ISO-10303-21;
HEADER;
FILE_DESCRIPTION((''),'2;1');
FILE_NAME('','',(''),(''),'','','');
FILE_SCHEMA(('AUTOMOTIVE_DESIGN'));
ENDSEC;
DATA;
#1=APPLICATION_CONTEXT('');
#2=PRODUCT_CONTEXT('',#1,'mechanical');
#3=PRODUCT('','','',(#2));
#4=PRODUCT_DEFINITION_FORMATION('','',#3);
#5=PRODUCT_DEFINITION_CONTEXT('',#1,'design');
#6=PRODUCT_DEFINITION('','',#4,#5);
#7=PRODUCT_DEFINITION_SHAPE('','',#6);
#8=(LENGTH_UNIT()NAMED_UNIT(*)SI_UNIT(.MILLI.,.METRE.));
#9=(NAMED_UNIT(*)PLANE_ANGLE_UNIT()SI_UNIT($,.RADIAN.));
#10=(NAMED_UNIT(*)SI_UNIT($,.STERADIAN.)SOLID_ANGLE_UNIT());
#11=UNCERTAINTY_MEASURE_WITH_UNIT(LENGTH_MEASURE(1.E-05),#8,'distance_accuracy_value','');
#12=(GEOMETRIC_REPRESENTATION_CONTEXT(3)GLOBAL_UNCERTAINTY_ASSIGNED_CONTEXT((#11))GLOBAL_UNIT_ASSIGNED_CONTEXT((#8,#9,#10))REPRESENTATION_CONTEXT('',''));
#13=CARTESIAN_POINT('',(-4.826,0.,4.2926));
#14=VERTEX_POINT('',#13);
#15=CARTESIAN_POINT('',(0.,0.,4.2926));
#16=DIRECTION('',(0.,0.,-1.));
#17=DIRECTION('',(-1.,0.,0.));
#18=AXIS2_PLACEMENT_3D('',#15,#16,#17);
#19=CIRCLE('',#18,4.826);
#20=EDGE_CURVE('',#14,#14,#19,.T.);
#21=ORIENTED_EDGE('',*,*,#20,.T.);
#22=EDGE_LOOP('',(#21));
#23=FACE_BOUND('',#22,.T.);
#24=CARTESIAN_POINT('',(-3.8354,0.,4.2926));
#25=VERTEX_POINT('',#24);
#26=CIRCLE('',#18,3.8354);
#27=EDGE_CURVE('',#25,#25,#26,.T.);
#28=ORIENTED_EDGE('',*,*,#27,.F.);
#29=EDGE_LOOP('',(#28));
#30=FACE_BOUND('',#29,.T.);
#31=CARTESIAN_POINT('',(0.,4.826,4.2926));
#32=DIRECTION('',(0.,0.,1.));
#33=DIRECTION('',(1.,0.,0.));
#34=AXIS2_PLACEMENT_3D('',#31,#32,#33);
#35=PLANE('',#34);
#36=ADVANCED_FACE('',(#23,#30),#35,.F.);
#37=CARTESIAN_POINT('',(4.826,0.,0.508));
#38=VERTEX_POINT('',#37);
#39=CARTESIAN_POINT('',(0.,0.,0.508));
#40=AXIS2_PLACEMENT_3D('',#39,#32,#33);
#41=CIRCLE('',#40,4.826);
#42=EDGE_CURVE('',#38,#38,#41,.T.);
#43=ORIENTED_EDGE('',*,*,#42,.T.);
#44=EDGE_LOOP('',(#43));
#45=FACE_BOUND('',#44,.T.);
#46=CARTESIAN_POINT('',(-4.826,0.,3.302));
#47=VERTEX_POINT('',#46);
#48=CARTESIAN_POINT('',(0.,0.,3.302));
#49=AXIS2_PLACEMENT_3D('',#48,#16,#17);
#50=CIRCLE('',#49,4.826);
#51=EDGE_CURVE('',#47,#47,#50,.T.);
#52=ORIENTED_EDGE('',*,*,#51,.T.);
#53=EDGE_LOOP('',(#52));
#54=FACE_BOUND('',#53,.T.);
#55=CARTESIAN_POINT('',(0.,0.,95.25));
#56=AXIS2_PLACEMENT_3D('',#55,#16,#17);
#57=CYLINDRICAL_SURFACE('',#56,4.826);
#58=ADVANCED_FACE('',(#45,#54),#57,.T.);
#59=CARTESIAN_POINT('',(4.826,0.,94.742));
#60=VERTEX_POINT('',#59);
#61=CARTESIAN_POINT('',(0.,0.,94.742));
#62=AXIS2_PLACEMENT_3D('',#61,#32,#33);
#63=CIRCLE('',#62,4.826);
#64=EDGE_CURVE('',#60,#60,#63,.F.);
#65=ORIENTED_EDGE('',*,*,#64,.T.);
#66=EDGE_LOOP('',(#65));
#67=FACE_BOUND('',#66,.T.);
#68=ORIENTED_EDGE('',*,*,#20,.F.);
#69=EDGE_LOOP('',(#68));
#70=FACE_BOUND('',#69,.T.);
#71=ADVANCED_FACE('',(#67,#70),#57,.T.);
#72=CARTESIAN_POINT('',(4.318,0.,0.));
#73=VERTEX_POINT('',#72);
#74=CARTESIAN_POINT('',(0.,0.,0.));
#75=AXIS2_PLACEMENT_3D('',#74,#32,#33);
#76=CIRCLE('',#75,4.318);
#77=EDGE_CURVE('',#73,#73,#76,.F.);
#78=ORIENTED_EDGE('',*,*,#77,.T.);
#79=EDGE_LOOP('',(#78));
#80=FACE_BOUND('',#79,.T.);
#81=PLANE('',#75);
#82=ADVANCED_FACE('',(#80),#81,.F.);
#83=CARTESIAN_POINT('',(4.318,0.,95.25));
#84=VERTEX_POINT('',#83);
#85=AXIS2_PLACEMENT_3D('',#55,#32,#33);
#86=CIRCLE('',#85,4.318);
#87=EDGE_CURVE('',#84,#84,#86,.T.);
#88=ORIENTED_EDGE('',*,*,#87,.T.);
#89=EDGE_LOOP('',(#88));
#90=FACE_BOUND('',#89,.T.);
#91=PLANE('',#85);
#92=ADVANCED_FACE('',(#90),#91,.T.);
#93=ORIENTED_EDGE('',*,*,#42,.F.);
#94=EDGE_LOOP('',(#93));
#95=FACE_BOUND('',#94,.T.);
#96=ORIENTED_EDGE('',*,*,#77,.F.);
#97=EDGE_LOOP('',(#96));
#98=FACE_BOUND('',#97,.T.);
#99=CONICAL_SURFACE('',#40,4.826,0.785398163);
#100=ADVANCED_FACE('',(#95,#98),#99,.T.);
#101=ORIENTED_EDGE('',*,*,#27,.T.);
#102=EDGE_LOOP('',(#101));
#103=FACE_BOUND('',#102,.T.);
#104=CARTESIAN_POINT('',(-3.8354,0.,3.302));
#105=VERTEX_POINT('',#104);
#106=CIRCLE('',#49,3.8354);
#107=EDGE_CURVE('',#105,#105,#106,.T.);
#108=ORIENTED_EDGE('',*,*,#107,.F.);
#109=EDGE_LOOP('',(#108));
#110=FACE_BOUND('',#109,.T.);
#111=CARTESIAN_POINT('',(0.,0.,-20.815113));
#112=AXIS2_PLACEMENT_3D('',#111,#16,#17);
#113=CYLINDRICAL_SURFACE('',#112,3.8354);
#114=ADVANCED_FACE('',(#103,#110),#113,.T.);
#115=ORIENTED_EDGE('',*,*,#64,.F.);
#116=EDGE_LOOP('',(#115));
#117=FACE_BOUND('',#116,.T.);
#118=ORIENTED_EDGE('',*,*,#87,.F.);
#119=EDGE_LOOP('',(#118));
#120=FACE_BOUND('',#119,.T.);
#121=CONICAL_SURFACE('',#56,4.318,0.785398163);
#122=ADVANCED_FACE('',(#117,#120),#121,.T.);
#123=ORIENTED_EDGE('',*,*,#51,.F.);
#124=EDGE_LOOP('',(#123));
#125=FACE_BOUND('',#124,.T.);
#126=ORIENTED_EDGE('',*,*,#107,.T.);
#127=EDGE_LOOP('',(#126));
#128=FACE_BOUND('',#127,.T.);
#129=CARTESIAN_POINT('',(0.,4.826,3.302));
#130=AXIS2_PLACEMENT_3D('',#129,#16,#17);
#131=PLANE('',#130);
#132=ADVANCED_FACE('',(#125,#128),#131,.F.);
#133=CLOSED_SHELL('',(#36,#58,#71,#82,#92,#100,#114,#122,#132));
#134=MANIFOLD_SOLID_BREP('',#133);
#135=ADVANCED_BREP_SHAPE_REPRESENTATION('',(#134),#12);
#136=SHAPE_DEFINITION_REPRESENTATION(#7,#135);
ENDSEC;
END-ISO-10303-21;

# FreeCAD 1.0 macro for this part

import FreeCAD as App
import Part
import Sketcher
Q = App.Units.Quantity


def edges_at(feature, points):
    """Names of the edges that pass closest to the given points."""
    edges = feature.Shape.Edges
    near = lambda p: min(range(len(edges)), key=lambda i: edges[i].distToShape(Part.Vertex(*p))[0])
    return sorted({f"Edge{near(p) + 1}" for p in points})

doc = App.newDocument("Part")
params = doc.addObject("Spreadsheet::Sheet", "Params")
for row, (alias, value) in enumerate([
    ("sketch1_diameter", "0.38 in"),
    ("pad1_length", "3.75 in"),
    ("chamfer_size", "0.02 in"),
    ("sketch2_width", "0.039 in"),
    ("groove_angle", "360 deg"),
], start=1):
    params.set(f"A{row}", alias)
    params.set(f"B{row}", "=" + value)
    params.setAlias(f"B{row}", alias)

body = doc.addObject("PartDesign::Body", "Body")

sketch1 = doc.addObject("Sketcher::SketchObject", "Sketch")
body.addObject(sketch1)
sketch1.AttachmentSupport = (doc.XY_Plane, [""])
sketch1.MapMode = "FlatFace"
sketch1.addGeometry(Part.Circle(App.Vector(0, 0, 0), App.Vector(0, 0, 1), 4.8), False)
sketch1.addConstraint(Sketcher.Constraint("Coincident", 0, 3, -1, 1))
sketch1.addConstraint(Sketcher.Constraint("Diameter", 0, Q("0.38 in")))
sketch1.setExpression("Constraints[1]", "Params.sketch1_diameter")
pad1 = doc.addObject("PartDesign::Pad", "Pad")
body.addObject(pad1)
pad1.Profile = sketch1
pad1.setExpression("Length", "Params.pad1_length")
doc.recompute()

chamfer = doc.addObject("PartDesign::Chamfer", "Chamfer")
body.addObject(chamfer)
chamfer.Base = (pad1, edges_at(pad1, [(-4.826, 0, 0), (-4.826, 0, 95.25)]))
chamfer.setExpression("Size", "Params.chamfer_size")

sketch2 = doc.addObject("Sketcher::SketchObject", "Sketch001")
body.addObject(sketch2)
sketch2.AttachmentSupport = (doc.YZ_Plane, [""])
sketch2.MapMode = "FlatFace"
sketch2.addGeometry(Part.LineSegment(App.Vector(4.8, 4.3, 0), App.Vector(3.8, 4.3, 0)), False)
sketch2.addGeometry(Part.LineSegment(App.Vector(3.8, 4.3, 0), App.Vector(3.8, 3.3, 0)), False)
sketch2.addGeometry(Part.LineSegment(App.Vector(3.8, 3.3, 0), App.Vector(4.8, 3.3, 0)), False)
sketch2.addGeometry(Part.LineSegment(App.Vector(4.8, 3.3, 0), App.Vector(4.8, 4.3, 0)), False)
sketch2.addConstraint(Sketcher.Constraint("Coincident", 0, 2, 1, 1))
sketch2.addConstraint(Sketcher.Constraint("Coincident", 1, 2, 2, 1))
sketch2.addConstraint(Sketcher.Constraint("Coincident", 2, 2, 3, 1))
sketch2.addConstraint(Sketcher.Constraint("Coincident", 3, 2, 0, 1))
sketch2.addConstraint(Sketcher.Constraint("Horizontal", 0))
sketch2.addConstraint(Sketcher.Constraint("Vertical", 1))
sketch2.addConstraint(Sketcher.Constraint("Horizontal", 2))
sketch2.addConstraint(Sketcher.Constraint("Vertical", 3))
sketch2.addConstraint(Sketcher.Constraint("Equal", 2, 1))
sketch2.addConstraint(Sketcher.Constraint("DistanceX", 0, 2, 0, 1, Q("0.039 in")))
sketch2.addConstraint(Sketcher.Constraint("DistanceY", -1, 1, 1, 2, Q("0.13 in")))
sketch2.addConstraint(Sketcher.Constraint("DistanceX", -1, 1, 2, 2, Q("0.19 in")))
sketch2.setExpression("Constraints[9]", "Params.sketch2_width")
groove = doc.addObject("PartDesign::Groove", "Groove")
body.addObject(groove)
groove.Profile = sketch2
groove.ReferenceAxis = (sketch2, ["V_Axis"])
groove.setExpression("Angle", "Params.groove_angle")

doc.recompute()
